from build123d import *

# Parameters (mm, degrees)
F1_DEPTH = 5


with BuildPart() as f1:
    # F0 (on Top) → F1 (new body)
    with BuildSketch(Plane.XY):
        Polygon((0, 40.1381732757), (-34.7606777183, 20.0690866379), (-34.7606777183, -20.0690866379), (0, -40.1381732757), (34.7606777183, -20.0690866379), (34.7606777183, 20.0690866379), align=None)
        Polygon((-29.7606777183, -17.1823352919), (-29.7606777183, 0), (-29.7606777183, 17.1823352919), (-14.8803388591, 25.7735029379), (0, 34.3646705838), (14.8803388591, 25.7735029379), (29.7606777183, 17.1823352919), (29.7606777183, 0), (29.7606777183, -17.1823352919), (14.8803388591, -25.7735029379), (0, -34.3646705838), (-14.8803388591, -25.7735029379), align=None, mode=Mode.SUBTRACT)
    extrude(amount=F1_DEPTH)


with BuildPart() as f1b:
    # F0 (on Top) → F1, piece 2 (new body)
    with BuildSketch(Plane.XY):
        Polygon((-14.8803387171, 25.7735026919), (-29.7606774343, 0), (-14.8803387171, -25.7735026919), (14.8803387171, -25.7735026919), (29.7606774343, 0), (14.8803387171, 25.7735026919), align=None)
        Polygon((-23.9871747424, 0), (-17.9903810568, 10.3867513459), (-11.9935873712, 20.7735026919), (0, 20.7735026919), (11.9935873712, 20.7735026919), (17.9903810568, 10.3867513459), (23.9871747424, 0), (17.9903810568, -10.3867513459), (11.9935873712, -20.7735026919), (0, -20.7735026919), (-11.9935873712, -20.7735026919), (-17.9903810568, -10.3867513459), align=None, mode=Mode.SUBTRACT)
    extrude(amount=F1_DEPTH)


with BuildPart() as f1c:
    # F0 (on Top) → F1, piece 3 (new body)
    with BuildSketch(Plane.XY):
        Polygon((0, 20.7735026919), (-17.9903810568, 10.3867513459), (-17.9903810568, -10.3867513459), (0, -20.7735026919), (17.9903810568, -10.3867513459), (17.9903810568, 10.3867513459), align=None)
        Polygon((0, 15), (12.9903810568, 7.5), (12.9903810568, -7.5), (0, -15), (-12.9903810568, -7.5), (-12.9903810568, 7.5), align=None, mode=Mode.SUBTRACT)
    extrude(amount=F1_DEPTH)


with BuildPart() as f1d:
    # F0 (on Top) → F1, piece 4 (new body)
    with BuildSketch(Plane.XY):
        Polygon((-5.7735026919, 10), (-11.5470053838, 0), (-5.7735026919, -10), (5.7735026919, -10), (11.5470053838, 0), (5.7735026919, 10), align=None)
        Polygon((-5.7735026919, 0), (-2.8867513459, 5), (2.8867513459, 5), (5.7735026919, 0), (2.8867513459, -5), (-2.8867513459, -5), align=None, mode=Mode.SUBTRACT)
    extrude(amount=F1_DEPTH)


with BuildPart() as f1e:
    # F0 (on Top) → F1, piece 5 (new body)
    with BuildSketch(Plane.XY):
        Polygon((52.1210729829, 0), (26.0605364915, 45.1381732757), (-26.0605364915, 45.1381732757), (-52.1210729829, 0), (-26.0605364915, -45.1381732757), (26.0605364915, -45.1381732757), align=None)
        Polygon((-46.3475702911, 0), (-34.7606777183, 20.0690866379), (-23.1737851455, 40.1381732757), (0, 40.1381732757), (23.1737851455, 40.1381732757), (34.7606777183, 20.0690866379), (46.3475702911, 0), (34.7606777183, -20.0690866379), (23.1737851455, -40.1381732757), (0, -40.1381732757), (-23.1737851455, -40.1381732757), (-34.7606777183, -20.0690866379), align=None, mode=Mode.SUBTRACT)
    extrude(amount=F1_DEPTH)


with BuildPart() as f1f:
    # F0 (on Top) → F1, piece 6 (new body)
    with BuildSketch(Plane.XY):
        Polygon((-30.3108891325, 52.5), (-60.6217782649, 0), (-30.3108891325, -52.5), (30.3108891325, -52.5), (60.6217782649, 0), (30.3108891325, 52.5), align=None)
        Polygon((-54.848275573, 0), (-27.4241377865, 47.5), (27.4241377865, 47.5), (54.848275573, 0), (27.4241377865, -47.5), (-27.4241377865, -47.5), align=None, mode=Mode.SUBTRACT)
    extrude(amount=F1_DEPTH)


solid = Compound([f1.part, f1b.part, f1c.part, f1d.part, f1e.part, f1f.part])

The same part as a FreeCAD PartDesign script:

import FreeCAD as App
import Part
import Sketcher
Q = App.Units.Quantity


def add_polygon(sketch, points):
    """Adds a closed chain of lines whose ends are joined by coincident constraints."""
    first, n = sketch.GeometryCount, len(points)
    for a, b in zip(points, points[1:] + points[:1]):
        sketch.addGeometry(Part.LineSegment(App.Vector(*a, 0), App.Vector(*b, 0)), False)
    for i in range(n):
        sketch.addConstraint(Sketcher.Constraint("Coincident", first + i, 2, first + (i + 1) % n, 1))

doc = App.newDocument("Part")
body = doc.addObject("PartDesign::Body", "Body")

sketch1 = doc.addObject("Sketcher::SketchObject", "Sketch")
body.addObject(sketch1)
sketch1.AttachmentSupport = (doc.XY_Plane, [""])
sketch1.MapMode = "FlatFace"
add_polygon(sketch1, [(0, 40), (-35, 20), (-35, -20), (0, -40), (35, -20), (35, 20)])
add_polygon(sketch1, [(-15, -26), (-30, -17), (-30, 17), (-15, 26), (0, 34), (15, 26), (30, 17), (30, -17), (15, -26), (0, -34)])
sketch1.addConstraint(Sketcher.Constraint("Vertical", 1))
sketch1.addConstraint(Sketcher.Constraint("Vertical", 4))
sketch1.addConstraint(Sketcher.Constraint("Vertical", 7))
sketch1.addConstraint(Sketcher.Constraint("Vertical", 12))
sketch1.addConstraint(Sketcher.Constraint("Symmetric", 0, 2, 3, 2, -1, 1))
sketch1.addConstraint(Sketcher.Constraint("Symmetric", 2, 2, 5, 2, -1, 1))
sketch1.addConstraint(Sketcher.Constraint("Symmetric", 6, 2, 11, 2, -1, 1))
sketch1.addConstraint(Sketcher.Constraint("Symmetric", 8, 2, 13, 2, -1, 1))
sketch1.addConstraint(Sketcher.Constraint("Symmetric", 9, 2, 14, 2, -1, 1))
sketch1.addConstraint(Sketcher.Constraint("Symmetric", 10, 2, 15, 2, -1, 1))
sketch1.addConstraint(Sketcher.Constraint("Symmetric", 8, 2, 10, 2, -2))
sketch1.addConstraint(Sketcher.Constraint("PointOnObject", 2, 2, -2))
sketch1.addConstraint(Sketcher.Constraint("PointOnObject", 9, 2, -2))
sketch1.addConstraint(Sketcher.Constraint("Parallel", 2, 5))
sketch1.addConstraint(Sketcher.Constraint("Parallel", 5, 6))
sketch1.addConstraint(Sketcher.Constraint("Parallel", 3, 8))
sketch1.addConstraint(Sketcher.Constraint("Parallel", 8, 9))
sketch1.addConstraint(Sketcher.Constraint("Parallel", 6, 10))
sketch1.addConstraint(Sketcher.Constraint("Parallel", 9, 13))
sketch1.addConstraint(Sketcher.Constraint("Equal", 8, 9))
sketch1.addConstraint(Sketcher.Constraint("Angle", 0, Q("-150 deg")))
sketch1.addConstraint(Sketcher.Constraint("DistanceX", 1, 2, 6, 2, 5.0))
sketch1.addConstraint(Sketcher.Constraint("DistanceY", 7, 1, 7, 2, 34.364671))
sketch1.addConstraint(Sketcher.Constraint("DistanceY", 1, 2, 1, 1, 40.138173))
sketch1.addConstraint(Sketcher.Constraint("DistanceX", 8, 2, -1, 1, 14.880339))
pad1 = doc.addObject("PartDesign::Pad", "Pad")
body.addObject(pad1)
pad1.Profile = sketch1
pad1.Length = 5
body2 = doc.addObject("PartDesign::Body", "Body001")

sketch2 = doc.addObject("Sketcher::SketchObject", "Sketch001")
body2.addObject(sketch2)
sketch2.AttachmentSupport = (doc.getObject("XY_Plane001"), [""])
sketch2.MapMode = "FlatFace"
add_polygon(sketch2, [(-15, 26), (-30, 0), (-15, -26), (15, -26), (30, 0), (15, 26)])
add_polygon(sketch2, [(-18, -10), (-24, 0), (-18, 10), (-12, 21), (12, 21), (18, 10), (24, 0), (18, -10), (12, -21), (-12, -21)])
sketch2.addConstraint(Sketcher.Constraint("Horizontal", 2))
sketch2.addConstraint(Sketcher.Constraint("Horizontal", 5))
sketch2.addConstraint(Sketcher.Constraint("Horizontal", 9))
sketch2.addConstraint(Sketcher.Constraint("Horizontal", 14))
sketch2.addConstraint(Sketcher.Constraint("Symmetric", 0, 2, 3, 2, -1, 1))
sketch2.addConstraint(Sketcher.Constraint("Symmetric", 1, 2, 4, 2, -1, 1))
sketch2.addConstraint(Sketcher.Constraint("Symmetric", 6, 2, 11, 2, -1, 1))
sketch2.addConstraint(Sketcher.Constraint("Symmetric", 7, 2, 12, 2, -1, 1))
sketch2.addConstraint(Sketcher.Constraint("Symmetric", 8, 2, 13, 2, -1, 1))
sketch2.addConstraint(Sketcher.Constraint("Symmetric", 10, 2, 15, 2, -1, 1))
sketch2.addConstraint(Sketcher.Constraint("Symmetric", 7, 2, 10, 2, -2))
sketch2.addConstraint(Sketcher.Constraint("PointOnObject", 0, 2, -1))
sketch2.addConstraint(Sketcher.Constraint("PointOnObject", 6, 2, -1))
sketch2.addConstraint(Sketcher.Constraint("Parallel", 0, 3))
sketch2.addConstraint(Sketcher.Constraint("Parallel", 4, 6))
sketch2.addConstraint(Sketcher.Constraint("Parallel", 3, 7))
sketch2.addConstraint(Sketcher.Constraint("Parallel", 7, 8))
sketch2.addConstraint(Sketcher.Constraint("Parallel", 6, 10))
sketch2.addConstraint(Sketcher.Constraint("Parallel", 11, 15))
sketch2.addConstraint(Sketcher.Constraint("Equal", 7, 8))
sketch2.addConstraint(Sketcher.Constraint("Angle", 0, Q("-120 deg")))
sketch2.addConstraint(Sketcher.Constraint("DistanceY", 8, 2, 5, 2, 5.0))
sketch2.addConstraint(Sketcher.Constraint("DistanceX", 2, 1, 2, 2, 29.760677))
sketch2.addConstraint(Sketcher.Constraint("DistanceX", 9, 1, 9, 2, 23.987175))
sketch2.addConstraint(Sketcher.Constraint("DistanceX", 7, 2, -1, 1, 17.990381))
pad2 = doc.addObject("PartDesign::Pad", "Pad001")
body2.addObject(pad2)
pad2.Profile = sketch2
pad2.Length = 5
body3 = doc.addObject("PartDesign::Body", "Body002")

sketch3 = doc.addObject("Sketcher::SketchObject", "Sketch002")
body3.addObject(sketch3)
sketch3.AttachmentSupport = (doc.getObject("XY_Plane002"), [""])
sketch3.MapMode = "FlatFace"
add_polygon(sketch3, [(0, 21), (-18, 10), (-18, -10), (0, -21), (18, -10), (18, 10)])
add_polygon(sketch3, [(-13, 8), (0, 15), (13, 8), (13, -8), (0, -15), (-13, -8)])
sketch3.addConstraint(Sketcher.Constraint("Vertical", 1))
sketch3.addConstraint(Sketcher.Constraint("Vertical", 4))
sketch3.addConstraint(Sketcher.Constraint("Vertical", 8))
sketch3.addConstraint(Sketcher.Constraint("Vertical", 11))
sketch3.addConstraint(Sketcher.Constraint("Symmetric", 0, 2, 3, 2, -1, 1))
sketch3.addConstraint(Sketcher.Constraint("Symmetric", 2, 2, 5, 2, -1, 1))
sketch3.addConstraint(Sketcher.Constraint("Symmetric", 6, 2, 9, 2, -1, 1))
sketch3.addConstraint(Sketcher.Constraint("Symmetric", 7, 2, 10, 2, -1, 1))
sketch3.addConstraint(Sketcher.Constraint("PointOnObject", 2, 2, -2))
sketch3.addConstraint(Sketcher.Constraint("PointOnObject", 6, 2, -2))
sketch3.addConstraint(Sketcher.Constraint("Parallel", 2, 5))
sketch3.addConstraint(Sketcher.Constraint("Parallel", 3, 6))
sketch3.addConstraint(Sketcher.Constraint("Parallel", 5, 7))
sketch3.addConstraint(Sketcher.Constraint("Parallel", 6, 9))
sketch3.addConstraint(Sketcher.Constraint("Horizontal", 1, 2, 3, 2))
sketch3.addConstraint(Sketcher.Constraint("DistanceY", 8, 2, 8, 1, 15.0))
sketch3.addConstraint(Sketcher.Constraint("Angle", 0, Q("-150 deg")))
sketch3.addConstraint(Sketcher.Constraint("Distance", 6, 15.0))
sketch3.addConstraint(Sketcher.Constraint("DistanceX", 7, 2, 4, 2, 5.0))
sketch3.addConstraint(Sketcher.Constraint("DistanceY", 1, 2, 1, 1, 20.773503))
pad3 = doc.addObject("PartDesign::Pad", "Pad002")
body3.addObject(pad3)
pad3.Profile = sketch3
pad3.Length = 5
body4 = doc.addObject("PartDesign::Body", "Body003")

sketch4 = doc.addObject("Sketcher::SketchObject", "Sketch003")
body4.addObject(sketch4)
sketch4.AttachmentSupport = (doc.getObject("XY_Plane003"), [""])
sketch4.MapMode = "FlatFace"
add_polygon(sketch4, [(-6, 10), (-12, 0), (-6, -10), (6, -10), (12, 0), (6, 10)])
add_polygon(sketch4, [(-3, -5), (-6, 0), (-3, 5), (3, 5), (6, 0), (3, -5)])
sketch4.addConstraint(Sketcher.Constraint("Horizontal", 2))
sketch4.addConstraint(Sketcher.Constraint("Horizontal", 5))
sketch4.addConstraint(Sketcher.Constraint("Horizontal", 8))
sketch4.addConstraint(Sketcher.Constraint("Horizontal", 11))
sketch4.addConstraint(Sketcher.Constraint("Symmetric", 0, 2, 3, 2, -1, 1))
sketch4.addConstraint(Sketcher.Constraint("Symmetric", 1, 2, 4, 2, -1, 1))
sketch4.addConstraint(Sketcher.Constraint("Symmetric", 6, 2, 9, 2, -1, 1))
sketch4.addConstraint(Sketcher.Constraint("Symmetric", 7, 2, 10, 2, -1, 1))
sketch4.addConstraint(Sketcher.Constraint("PointOnObject", 0, 2, -1))
sketch4.addConstraint(Sketcher.Constraint("PointOnObject", 6, 2, -1))
sketch4.addConstraint(Sketcher.Constraint("Parallel", 0, 3))
sketch4.addConstraint(Sketcher.Constraint("Parallel", 4, 6))
sketch4.addConstraint(Sketcher.Constraint("Parallel", 3, 7))
sketch4.addConstraint(Sketcher.Constraint("Parallel", 6, 9))
sketch4.addConstraint(Sketcher.Constraint("Vertical", 2, 2, 4, 2))
sketch4.addConstraint(Sketcher.Constraint("Vertical", 5, 2, 6, 2))
sketch4.addConstraint(Sketcher.Constraint("Angle", 0, Q("-120 deg")))
sketch4.addConstraint(Sketcher.Constraint("DistanceY", 1, 2, -1, 1, 10.0))
sketch4.addConstraint(Sketcher.Constraint("DistanceY", -1, 1, 7, 2, 5.0))
sketch4.addConstraint(Sketcher.Constraint("DistanceX", 2, 1, 2, 2, 11.547005))
pad4 = doc.addObject("PartDesign::Pad", "Pad003")
body4.addObject(pad4)
pad4.Profile = sketch4
pad4.Length = 5
body5 = doc.addObject("PartDesign::Body", "Body004")

sketch5 = doc.addObject("Sketcher::SketchObject", "Sketch004")
body5.addObject(sketch5)
sketch5.AttachmentSupport = (doc.getObject("XY_Plane004"), [""])
sketch5.MapMode = "FlatFace"
add_polygon(sketch5, [(52, 0), (26, 45), (-26, 45), (-52, 0), (-26, -45), (26, -45)])
add_polygon(sketch5, [(-35, -20), (-46, 0), (-35, 20), (-23, 40), (23, 40), (35, 20), (46, 0), (35, -20), (23, -40), (-23, -40)])
sketch5.addConstraint(Sketcher.Constraint("Horizontal", 1))
sketch5.addConstraint(Sketcher.Constraint("Horizontal", 4))
sketch5.addConstraint(Sketcher.Constraint("Horizontal", 9))
sketch5.addConstraint(Sketcher.Constraint("Horizontal", 14))
sketch5.addConstraint(Sketcher.Constraint("Symmetric", 0, 2, 3, 2, -1, 1))
sketch5.addConstraint(Sketcher.Constraint("Symmetric", 2, 2, 5, 2, -1, 1))
sketch5.addConstraint(Sketcher.Constraint("Symmetric", 6, 2, 11, 2, -1, 1))
sketch5.addConstraint(Sketcher.Constraint("Symmetric", 7, 2, 12, 2, -1, 1))
sketch5.addConstraint(Sketcher.Constraint("Symmetric", 8, 2, 13, 2, -1, 1))
sketch5.addConstraint(Sketcher.Constraint("Symmetric", 10, 2, 15, 2, -1, 1))
sketch5.addConstraint(Sketcher.Constraint("Symmetric", 7, 2, 10, 2, -2))
sketch5.addConstraint(Sketcher.Constraint("PointOnObject", 2, 2, -1))
sketch5.addConstraint(Sketcher.Constraint("PointOnObject", 6, 2, -1))
sketch5.addConstraint(Sketcher.Constraint("Parallel", 2, 5))
sketch5.addConstraint(Sketcher.Constraint("Parallel", 3, 6))
sketch5.addConstraint(Sketcher.Constraint("Parallel", 5, 7))
sketch5.addConstraint(Sketcher.Constraint("Parallel", 7, 8))
sketch5.addConstraint(Sketcher.Constraint("Parallel", 6, 10))
sketch5.addConstraint(Sketcher.Constraint("Parallel", 11, 15))
sketch5.addConstraint(Sketcher.Constraint("Equal", 7, 8))
sketch5.addConstraint(Sketcher.Constraint("Angle", 0, Q("120 deg")))
sketch5.addConstraint(Sketcher.Constraint("DistanceY", 8, 2, 1, 2, 5.0))
sketch5.addConstraint(Sketcher.Constraint("DistanceX", 9, 1, 9, 2, 46.34757))
sketch5.addConstraint(Sketcher.Constraint("DistanceX", 1, 2, 1, 1, 52.121073))
sketch5.addConstraint(Sketcher.Constraint("DistanceX", 6, 2, -1, 1, 46.34757))
pad5 = doc.addObject("PartDesign::Pad", "Pad004")
body5.addObject(pad5)
pad5.Profile = sketch5
pad5.Length = 5
body6 = doc.addObject("PartDesign::Body", "Body005")

sketch6 = doc.addObject("Sketcher::SketchObject", "Sketch005")
body6.addObject(sketch6)
sketch6.AttachmentSupport = (doc.getObject("XY_Plane005"), [""])
sketch6.MapMode = "FlatFace"
add_polygon(sketch6, [(-30, 52), (-61, 0), (-30, -52), (30, -52), (61, 0), (30, 52)])
add_polygon(sketch6, [(-27, -48), (-55, 0), (-27, 48), (27, 48), (55, 0), (27, -48)])
sketch6.addConstraint(Sketcher.Constraint("Horizontal", 2))
sketch6.addConstraint(Sketcher.Constraint("Horizontal", 5))
sketch6.addConstraint(Sketcher.Constraint("Horizontal", 8))
sketch6.addConstraint(Sketcher.Constraint("Horizontal", 11))
sketch6.addConstraint(Sketcher.Constraint("Symmetric", 0, 2, 3, 2, -1, 1))
sketch6.addConstraint(Sketcher.Constraint("Symmetric", 1, 2, 4, 2, -1, 1))
sketch6.addConstraint(Sketcher.Constraint("Symmetric", 6, 2, 9, 2, -1, 1))
sketch6.addConstraint(Sketcher.Constraint("Symmetric", 7, 2, 10, 2, -1, 1))
sketch6.addConstraint(Sketcher.Constraint("PointOnObject", 0, 2, -1))
sketch6.addConstraint(Sketcher.Constraint("PointOnObject", 6, 2, -1))
sketch6.addConstraint(Sketcher.Constraint("Parallel", 0, 3))
sketch6.addConstraint(Sketcher.Constraint("Parallel", 4, 6))
sketch6.addConstraint(Sketcher.Constraint("Parallel", 3, 7))
sketch6.addConstraint(Sketcher.Constraint("Parallel", 6, 9))
sketch6.addConstraint(Sketcher.Constraint("Vertical", 2, 2, 4, 2))
sketch6.addConstraint(Sketcher.Constraint("Angle", 0, Q("-120 deg")))
sketch6.addConstraint(Sketcher.Constraint("DistanceY", 2, 2, 4, 2, 105.0))
sketch6.addConstraint(Sketcher.Constraint("DistanceY", 7, 2, 5, 2, 5.0))
sketch6.addConstraint(Sketcher.Constraint("DistanceX", 2, 1, 2, 2, 60.621778))
sketch6.addConstraint(Sketcher.Constraint("DistanceX", 8, 1, 8, 2, 54.848276))
pad6 = doc.addObject("PartDesign::Pad", "Pad005")
body6.addObject(pad6)
pad6.Profile = sketch6
pad6.Length = 5

doc.recompute()
